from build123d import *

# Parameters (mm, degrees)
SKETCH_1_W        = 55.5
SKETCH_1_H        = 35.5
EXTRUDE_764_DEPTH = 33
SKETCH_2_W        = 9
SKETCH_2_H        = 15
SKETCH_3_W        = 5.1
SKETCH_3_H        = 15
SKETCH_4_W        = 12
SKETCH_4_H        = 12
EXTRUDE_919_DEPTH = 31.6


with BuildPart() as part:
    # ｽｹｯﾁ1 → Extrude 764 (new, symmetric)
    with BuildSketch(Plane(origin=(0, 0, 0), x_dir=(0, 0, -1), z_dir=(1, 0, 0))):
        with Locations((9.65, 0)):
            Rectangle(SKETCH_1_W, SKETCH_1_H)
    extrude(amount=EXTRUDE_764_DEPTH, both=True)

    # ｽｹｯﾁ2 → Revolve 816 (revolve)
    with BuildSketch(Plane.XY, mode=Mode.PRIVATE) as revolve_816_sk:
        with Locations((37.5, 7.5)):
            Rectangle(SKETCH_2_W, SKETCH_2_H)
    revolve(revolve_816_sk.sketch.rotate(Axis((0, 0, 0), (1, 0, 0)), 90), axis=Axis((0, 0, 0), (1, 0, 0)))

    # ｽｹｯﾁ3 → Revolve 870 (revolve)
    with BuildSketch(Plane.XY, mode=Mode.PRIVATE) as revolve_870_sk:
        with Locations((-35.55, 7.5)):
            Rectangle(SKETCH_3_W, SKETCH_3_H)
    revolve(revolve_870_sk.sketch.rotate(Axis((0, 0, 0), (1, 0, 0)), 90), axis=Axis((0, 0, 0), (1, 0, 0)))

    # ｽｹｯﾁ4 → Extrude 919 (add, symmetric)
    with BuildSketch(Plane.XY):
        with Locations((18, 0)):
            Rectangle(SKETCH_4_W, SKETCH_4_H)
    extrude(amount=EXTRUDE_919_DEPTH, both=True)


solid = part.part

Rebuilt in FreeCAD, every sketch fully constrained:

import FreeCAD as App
import Part
import Sketcher

V = App.Vector
Q = App.Units.Quantity

doc = App.newDocument("Part")
body = doc.addObject("PartDesign::Body", "Body")

# Sketch on YZ plane
sketch1 = body.newObject("Sketcher::SketchObject", "Sketch")
sketch1.AttachmentSupport = (doc.getObject("YZ_Plane"), [""])
sketch1.MapMode = "FlatFace"
sketch1.addGeometry(Part.LineSegment(V(18, 18, 0), V(-18, 18, 0)), False)
sketch1.addGeometry(Part.LineSegment(V(-18, 18, 0), V(-18, -37, 0)), False)
sketch1.addGeometry(Part.LineSegment(V(-18, -37, 0), V(18, -37, 0)), False)
sketch1.addGeometry(Part.LineSegment(V(18, -37, 0), V(18, 18, 0)), False)
sketch1.addConstraint(Sketcher.Constraint("Coincident", 0, 2, 1, 1))
sketch1.addConstraint(Sketcher.Constraint("Coincident", 1, 2, 2, 1))
sketch1.addConstraint(Sketcher.Constraint("Coincident", 2, 2, 3, 1))
sketch1.addConstraint(Sketcher.Constraint("Coincident", 3, 2, 0, 1))
sketch1.addConstraint(Sketcher.Constraint("Horizontal", 0))
sketch1.addConstraint(Sketcher.Constraint("Vertical", 1))
sketch1.addConstraint(Sketcher.Constraint("Horizontal", 2))
sketch1.addConstraint(Sketcher.Constraint("Vertical", 3))
sketch1.addConstraint(Sketcher.Constraint("DistanceX", 0, 2, 0, 1, Q("35.5 mm")))
sketch1.addConstraint(Sketcher.Constraint("DistanceY", 1, 2, 1, 1, Q("55.5 mm")))
sketch1.addConstraint(Sketcher.Constraint("DistanceY", -1, 1, 0, 2, Q("18.1 mm")))
sketch1.addConstraint(Sketcher.Constraint("DistanceX", 0, 2, -1, 1, Q("17.75 mm")))
pad1 = body.newObject("PartDesign::Pad", "Pad")
pad1.Profile = sketch1
pad1.Length = 66
pad1.Midplane = True

# Sketch on XY plane
sketch2 = body.newObject("Sketcher::SketchObject", "Sketch001")
sketch2.AttachmentSupport = (doc.getObject("XY_Plane"), [""])
sketch2.MapMode = "FlatFace"
sketch2.addGeometry(Part.LineSegment(V(33, 15, 0), V(33, 0, 0)), False)
sketch2.addGeometry(Part.LineSegment(V(33, 0, 0), V(42, 0, 0)), False)
sketch2.addGeometry(Part.LineSegment(V(42, 0, 0), V(42, 15, 0)), False)
sketch2.addGeometry(Part.LineSegment(V(42, 15, 0), V(33, 15, 0)), False)
sketch2.addConstraint(Sketcher.Constraint("Coincident", 0, 2, 1, 1))
sketch2.addConstraint(Sketcher.Constraint("Coincident", 1, 2, 2, 1))
sketch2.addConstraint(Sketcher.Constraint("Coincident", 2, 2, 3, 1))
sketch2.addConstraint(Sketcher.Constraint("Coincident", 3, 2, 0, 1))
sketch2.addConstraint(Sketcher.Constraint("Vertical", 0))
sketch2.addConstraint(Sketcher.Constraint("Horizontal", 1))
sketch2.addConstraint(Sketcher.Constraint("Vertical", 2))
sketch2.addConstraint(Sketcher.Constraint("Horizontal", 3))
sketch2.addConstraint(Sketcher.Constraint("PointOnObject", 0, 2, -1))
sketch2.addConstraint(Sketcher.Constraint("DistanceX", 1, 1, 1, 2, Q("9 mm")))
sketch2.addConstraint(Sketcher.Constraint("DistanceY", 0, 2, 0, 1, Q("15 mm")))
sketch2.addConstraint(Sketcher.Constraint("DistanceX", -1, 1, 0, 2, Q("33 mm")))
revolution = body.newObject("PartDesign::Revolution", "Revolution")
revolution.Profile = sketch2
revolution.ReferenceAxis = (sketch2, ["H_Axis"])
revolution.Angle = 360

# Sketch on XY plane
sketch3 = body.newObject("Sketcher::SketchObject", "Sketch002")
sketch3.AttachmentSupport = (doc.getObject("XY_Plane"), [""])
sketch3.MapMode = "FlatFace"
sketch3.addGeometry(Part.LineSegment(V(-38, 15, 0), V(-38, 0, 0)), False)
sketch3.addGeometry(Part.LineSegment(V(-38, 0, 0), V(-33, 0, 0)), False)
sketch3.addGeometry(Part.LineSegment(V(-33, 0, 0), V(-33, 15, 0)), False)
sketch3.addGeometry(Part.LineSegment(V(-33, 15, 0), V(-38, 15, 0)), False)
sketch3.addConstraint(Sketcher.Constraint("Coincident", 0, 2, 1, 1))
sketch3.addConstraint(Sketcher.Constraint("Coincident", 1, 2, 2, 1))
sketch3.addConstraint(Sketcher.Constraint("Coincident", 2, 2, 3, 1))
sketch3.addConstraint(Sketcher.Constraint("Coincident", 3, 2, 0, 1))
sketch3.addConstraint(Sketcher.Constraint("Vertical", 0))
sketch3.addConstraint(Sketcher.Constraint("Horizontal", 1))
sketch3.addConstraint(Sketcher.Constraint("Vertical", 2))
sketch3.addConstraint(Sketcher.Constraint("Horizontal", 3))
sketch3.addConstraint(Sketcher.Constraint("PointOnObject", 0, 2, -1))
sketch3.addConstraint(Sketcher.Constraint("DistanceY", 0, 2, 0, 1, Q("15 mm")))
sketch3.addConstraint(Sketcher.Constraint("DistanceX", 1, 1, 1, 2, Q("5.1 mm")))
sketch3.addConstraint(Sketcher.Constraint("DistanceX", 1, 2, -1, 1, Q("33 mm")))
revolution2 = body.newObject("PartDesign::Revolution", "Revolution001")
revolution2.Profile = sketch3
revolution2.ReferenceAxis = (sketch3, ["H_Axis"])
revolution2.Angle = 360

# Sketch on XY plane
sketch4 = body.newObject("Sketcher::SketchObject", "Sketch003")
sketch4.AttachmentSupport = (doc.getObject("XY_Plane"), [""])
sketch4.MapMode = "FlatFace"
sketch4.addGeometry(Part.LineSegment(V(12, 6, 0), V(12, -6, 0)), False)
sketch4.addGeometry(Part.LineSegment(V(12, -6, 0), V(24, -6, 0)), False)
sketch4.addGeometry(Part.LineSegment(V(24, -6, 0), V(24, 6, 0)), False)
sketch4.addGeometry(Part.LineSegment(V(24, 6, 0), V(12, 6, 0)), False)
sketch4.addConstraint(Sketcher.Constraint("Coincident", 0, 2, 1, 1))
sketch4.addConstraint(Sketcher.Constraint("Coincident", 1, 2, 2, 1))
sketch4.addConstraint(Sketcher.Constraint("Coincident", 2, 2, 3, 1))
sketch4.addConstraint(Sketcher.Constraint("Coincident", 3, 2, 0, 1))
sketch4.addConstraint(Sketcher.Constraint("Vertical", 0))
sketch4.addConstraint(Sketcher.Constraint("Horizontal", 1))
sketch4.addConstraint(Sketcher.Constraint("Vertical", 2))
sketch4.addConstraint(Sketcher.Constraint("Horizontal", 3))
sketch4.addConstraint(Sketcher.Constraint("Equal", 3, 0))
sketch4.addConstraint(Sketcher.Constraint("DistanceX", 1, 1, 1, 2, Q("12 mm")))
sketch4.addConstraint(Sketcher.Constraint("DistanceX", -1, 1, 0, 2, Q("12 mm")))
sketch4.addConstraint(Sketcher.Constraint("DistanceY", 0, 2, -1, 1, Q("6 mm")))
pad2 = body.newObject("PartDesign::Pad", "Pad001")
pad2.Profile = sketch4
pad2.Length = 63.2
pad2.Midplane = True

doc.recompute()
